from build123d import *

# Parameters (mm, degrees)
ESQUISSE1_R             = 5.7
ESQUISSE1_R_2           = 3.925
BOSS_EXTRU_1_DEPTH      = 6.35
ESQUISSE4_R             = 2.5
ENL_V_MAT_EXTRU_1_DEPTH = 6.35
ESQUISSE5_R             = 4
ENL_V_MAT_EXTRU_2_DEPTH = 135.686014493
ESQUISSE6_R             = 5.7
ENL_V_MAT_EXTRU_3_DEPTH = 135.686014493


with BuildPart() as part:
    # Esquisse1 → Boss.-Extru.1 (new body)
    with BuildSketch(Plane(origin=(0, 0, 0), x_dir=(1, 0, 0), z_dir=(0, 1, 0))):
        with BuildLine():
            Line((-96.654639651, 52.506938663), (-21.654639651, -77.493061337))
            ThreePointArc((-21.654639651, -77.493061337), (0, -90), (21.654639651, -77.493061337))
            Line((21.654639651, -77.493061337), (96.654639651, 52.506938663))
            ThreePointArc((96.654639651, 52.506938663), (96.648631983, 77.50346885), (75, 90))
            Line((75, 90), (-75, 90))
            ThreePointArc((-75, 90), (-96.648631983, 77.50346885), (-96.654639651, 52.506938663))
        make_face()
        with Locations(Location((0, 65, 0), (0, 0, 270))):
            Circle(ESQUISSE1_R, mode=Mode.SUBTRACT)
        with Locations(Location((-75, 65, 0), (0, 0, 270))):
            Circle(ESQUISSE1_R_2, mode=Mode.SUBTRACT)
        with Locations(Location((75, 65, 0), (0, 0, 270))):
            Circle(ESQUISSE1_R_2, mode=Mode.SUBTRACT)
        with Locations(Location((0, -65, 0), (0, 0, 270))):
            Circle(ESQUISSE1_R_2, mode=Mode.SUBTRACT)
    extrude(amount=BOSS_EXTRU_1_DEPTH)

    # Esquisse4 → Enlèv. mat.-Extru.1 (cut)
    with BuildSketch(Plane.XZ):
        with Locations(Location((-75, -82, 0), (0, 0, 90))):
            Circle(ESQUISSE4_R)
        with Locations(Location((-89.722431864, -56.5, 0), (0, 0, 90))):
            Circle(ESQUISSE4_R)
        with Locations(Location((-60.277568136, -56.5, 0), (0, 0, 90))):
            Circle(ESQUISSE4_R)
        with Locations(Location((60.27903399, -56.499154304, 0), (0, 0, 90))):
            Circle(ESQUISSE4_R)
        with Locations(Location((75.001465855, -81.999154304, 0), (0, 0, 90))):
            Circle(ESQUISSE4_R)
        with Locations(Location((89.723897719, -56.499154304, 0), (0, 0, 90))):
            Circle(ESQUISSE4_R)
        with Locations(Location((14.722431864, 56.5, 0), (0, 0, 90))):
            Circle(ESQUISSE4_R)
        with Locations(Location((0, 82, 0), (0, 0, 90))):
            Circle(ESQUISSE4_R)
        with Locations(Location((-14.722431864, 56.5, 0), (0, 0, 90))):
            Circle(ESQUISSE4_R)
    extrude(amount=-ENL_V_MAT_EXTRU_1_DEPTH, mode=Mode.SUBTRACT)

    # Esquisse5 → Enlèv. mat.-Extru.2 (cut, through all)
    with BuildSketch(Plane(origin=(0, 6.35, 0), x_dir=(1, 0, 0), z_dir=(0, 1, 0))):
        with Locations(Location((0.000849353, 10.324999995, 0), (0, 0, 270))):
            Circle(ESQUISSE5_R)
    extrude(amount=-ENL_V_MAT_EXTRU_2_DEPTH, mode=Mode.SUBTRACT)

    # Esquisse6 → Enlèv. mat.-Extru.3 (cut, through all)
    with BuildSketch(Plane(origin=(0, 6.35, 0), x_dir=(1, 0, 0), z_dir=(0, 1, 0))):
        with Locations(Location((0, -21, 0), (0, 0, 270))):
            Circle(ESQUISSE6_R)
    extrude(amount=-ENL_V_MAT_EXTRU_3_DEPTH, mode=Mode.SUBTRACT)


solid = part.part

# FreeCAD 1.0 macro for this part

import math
import FreeCAD as App
import Part
import Sketcher
Q = App.Units.Quantity

doc = App.newDocument("Part")
body = doc.addObject("PartDesign::Body", "Body")

# Sketch on XZ plane
sketch1 = body.newObject("Sketcher::SketchObject", "Sketch")
sketch1.AttachmentSupport = (doc.getObject("XZ_Plane"), [""])
sketch1.MapMode = "FlatFace"
sketch1.addGeometry([
    Part.LineSegment(App.Vector(-96.7, -52.5, 0), App.Vector(-21.7, 77.5, 0)),  # 0
    Part.ArcOfCircle(Part.Circle(App.Vector(0, 65, 0), App.Vector(0, 0, 1), 25), math.radians(30), math.radians(150)),  # 1
    Part.LineSegment(App.Vector(21.7, 77.5, 0), App.Vector(96.7, -52.5, 0)),  # 2
    Part.ArcOfCircle(Part.Circle(App.Vector(75, -65, 0), App.Vector(0, 0, 1), 25), math.radians(-90), math.radians(30)),  # 3
    Part.LineSegment(App.Vector(75, -90, 0), App.Vector(-75, -90, 0)),  # 4
    Part.ArcOfCircle(Part.Circle(App.Vector(-75, -65, 0), App.Vector(0, 0, 1), 25), math.radians(150), math.radians(270)),  # 5
    Part.Circle(App.Vector(0, 65, 0), App.Vector(0, 0, 1), 3.9),  # 6
    Part.Circle(App.Vector(-75, -65, 0), App.Vector(0, 0, 1), 3.9),  # 7
    Part.Circle(App.Vector(0, -65, 0), App.Vector(0, 0, 1), 5.7),  # 8
    Part.Circle(App.Vector(75, -65, 0), App.Vector(0, 0, 1), 3.9),  # 9
], False)
sketch1.addConstraint([
    Sketcher.Constraint("Tangent", 0, 2, 1, 2),
    Sketcher.Constraint("Tangent", 1, 1, 2, 1),
    Sketcher.Constraint("Tangent", 2, 2, 3, 2),
    Sketcher.Constraint("Tangent", 3, 1, 4, 1),
    Sketcher.Constraint("Tangent", 4, 2, 5, 2),
    Sketcher.Constraint("Tangent", 5, 1, 0, 1),
    Sketcher.Constraint("Horizontal", 4),
    Sketcher.Constraint("Coincident", 6, 3, 1, 3),
    Sketcher.Constraint("Coincident", 7, 3, 5, 3),
    Sketcher.Constraint("Coincident", 9, 3, 3, 3),
    Sketcher.Constraint("Equal", 1, 3),
    Sketcher.Constraint("Equal", 3, 5),
    Sketcher.Constraint("Equal", 6, 7),
    Sketcher.Constraint("Equal", 7, 9),
    Sketcher.Constraint("Symmetric", 1, 3, 8, 3, -1, 1),
    Sketcher.Constraint("Symmetric", 0, 2, 1, 1, -2),
    Sketcher.Constraint("Horizontal", 7, 3, 8, 3),
    Sketcher.Constraint("Radius", 1, Q("25 mm")),
    Sketcher.Constraint("Diameter", 8, Q("11.4 mm")),
    Sketcher.Constraint("Diameter", 6, Q("7.85 mm")),
    Sketcher.Constraint("DistanceX", 4, 2, 4, 1, Q("150 mm")),
    Sketcher.Constraint("DistanceY", -1, 1, 1, 3, Q("65 mm")),
])
pad1 = body.newObject("PartDesign::Pad", "Pad")
pad1.Profile = sketch1
pad1.Length = 6.35
pad1.Reversed = True

# Sketch on XZ plane
sketch2 = body.newObject("Sketcher::SketchObject", "Sketch001")
sketch2.AttachmentSupport = (doc.getObject("XZ_Plane"), [""])
sketch2.MapMode = "FlatFace"
sketch2.addGeometry([
    Part.Circle(App.Vector(-75, -82, 0), App.Vector(0, 0, 1), 2.5),  # 0
    Part.Circle(App.Vector(-89.7, -56.5, 0), App.Vector(0, 0, 1), 2.5),  # 1
    Part.Circle(App.Vector(-60.3, -56.5, 0), App.Vector(0, 0, 1), 2.5),  # 2
    Part.Circle(App.Vector(60.3, -56.5, 0), App.Vector(0, 0, 1), 2.5),  # 3
    Part.Circle(App.Vector(75, -82, 0), App.Vector(0, 0, 1), 2.5),  # 4
    Part.Circle(App.Vector(89.7, -56.5, 0), App.Vector(0, 0, 1), 2.5),  # 5
    Part.Circle(App.Vector(14.7, 56.5, 0), App.Vector(0, 0, 1), 2.5),  # 6
    Part.Circle(App.Vector(0, 82, 0), App.Vector(0, 0, 1), 2.5),  # 7
    Part.Circle(App.Vector(-14.7, 56.5, 0), App.Vector(0, 0, 1), 2.5),  # 8
], False)
sketch2.addConstraint([
    Sketcher.Constraint("Equal", 0, 1),
    Sketcher.Constraint("Equal", 1, 2),
    Sketcher.Constraint("Equal", 2, 3),
    Sketcher.Constraint("Equal", 3, 4),
    Sketcher.Constraint("Equal", 4, 5),
    Sketcher.Constraint("Equal", 5, 6),
    Sketcher.Constraint("Equal", 6, 7),
    Sketcher.Constraint("Equal", 7, 8),
    Sketcher.Constraint("Symmetric", 6, 3, 8, 3, -2),
    Sketcher.Constraint("PointOnObject", 7, 3, -2),
    Sketcher.Constraint("Horizontal", 1, 3, 2, 3),
    Sketcher.Constraint("Horizontal", 3, 3, 5, 3),
    Sketcher.Constraint("Diameter", 0, Q("5 mm")),
    Sketcher.Constraint("DistanceX", 0, 3, -1, 1, Q("75 mm")),
    Sketcher.Constraint("DistanceY", 0, 3, -1, 1, Q("82 mm")),
    Sketcher.Constraint("DistanceY", -1, 1, 7, 3, Q("82 mm")),
    Sketcher.Constraint("DistanceX", 2, 3, 6, 3, Q("75 mm")),
    Sketcher.Constraint("DistanceY", 2, 3, 6, 3, Q("113 mm")),
    Sketcher.Constraint("DistanceX", 1, 3, 8, 3, Q("75 mm")),
    Sketcher.Constraint("DistanceY", 1, 3, -1, 1, Q("56.5 mm")),
    Sketcher.Constraint("DistanceY", 4, 3, 3, 3, Q("25.5 mm")),
    Sketcher.Constraint("DistanceX", 1, 3, -1, 1, Q("89.722432 mm")),
    Sketcher.Constraint("DistanceX", 3, 3, 4, 3, Q("14.722432 mm")),
    Sketcher.Constraint("DistanceX", 4, 3, 5, 3, Q("14.722432 mm")),
    Sketcher.Constraint("DistanceX", 1, 3, 5, 3, Q("179.44633 mm")),
    Sketcher.Constraint("DistanceY", 3, 3, -1, 1, Q("56.499154 mm")),
])
pocket1 = body.newObject("PartDesign::Pocket", "Pocket")
pocket1.Profile = sketch2
pocket1.Length = 6.35

# Sketch on XZ plane
sketch3 = body.newObject("Sketcher::SketchObject", "Sketch002")
sketch3.AttachmentSupport = (doc.getObject("XZ_Plane"), [""])
sketch3.MapMode = "FlatFace"
sketch3.AttachmentOffset = App.Placement(App.Vector(0, 0, -6.35), App.Rotation())
sketch3.addGeometry(Part.Circle(App.Vector(0, -10.3, 0), App.Vector(0, 0, 1), 4), False)
sketch3.addConstraint([
    Sketcher.Constraint("Diameter", 0, Q("8 mm")),
    Sketcher.Constraint("DistanceY", 0, 3, -1, 1, Q("10.325 mm")),
    Sketcher.Constraint("DistanceX", -1, 1, 0, 3, Q("0.000849 mm")),
])
pocket2 = body.newObject("PartDesign::Pocket", "Pocket001")
pocket2.Profile = sketch3
pocket2.Type = "ThroughAll"
pocket2.Reversed = True

# Sketch on XZ plane
sketch4 = body.newObject("Sketcher::SketchObject", "Sketch003")
sketch4.AttachmentSupport = (doc.getObject("XZ_Plane"), [""])
sketch4.MapMode = "FlatFace"
sketch4.AttachmentOffset = App.Placement(App.Vector(0, 0, -6.35), App.Rotation())
sketch4.addGeometry(Part.Circle(App.Vector(0, 21, 0), App.Vector(0, 0, 1), 6), False)
sketch4.addConstraint([
    Sketcher.Constraint("PointOnObject", 0, 3, -2),
    Sketcher.Constraint("Diameter", 0, Q("11.4 mm")),
    Sketcher.Constraint("DistanceY", -1, 1, 0, 3, Q("21 mm")),
])
pocket3 = body.newObject("PartDesign::Pocket", "Pocket002")
pocket3.Profile = sketch4
pocket3.Type = "ThroughAll"
pocket3.Reversed = True

doc.recompute()
